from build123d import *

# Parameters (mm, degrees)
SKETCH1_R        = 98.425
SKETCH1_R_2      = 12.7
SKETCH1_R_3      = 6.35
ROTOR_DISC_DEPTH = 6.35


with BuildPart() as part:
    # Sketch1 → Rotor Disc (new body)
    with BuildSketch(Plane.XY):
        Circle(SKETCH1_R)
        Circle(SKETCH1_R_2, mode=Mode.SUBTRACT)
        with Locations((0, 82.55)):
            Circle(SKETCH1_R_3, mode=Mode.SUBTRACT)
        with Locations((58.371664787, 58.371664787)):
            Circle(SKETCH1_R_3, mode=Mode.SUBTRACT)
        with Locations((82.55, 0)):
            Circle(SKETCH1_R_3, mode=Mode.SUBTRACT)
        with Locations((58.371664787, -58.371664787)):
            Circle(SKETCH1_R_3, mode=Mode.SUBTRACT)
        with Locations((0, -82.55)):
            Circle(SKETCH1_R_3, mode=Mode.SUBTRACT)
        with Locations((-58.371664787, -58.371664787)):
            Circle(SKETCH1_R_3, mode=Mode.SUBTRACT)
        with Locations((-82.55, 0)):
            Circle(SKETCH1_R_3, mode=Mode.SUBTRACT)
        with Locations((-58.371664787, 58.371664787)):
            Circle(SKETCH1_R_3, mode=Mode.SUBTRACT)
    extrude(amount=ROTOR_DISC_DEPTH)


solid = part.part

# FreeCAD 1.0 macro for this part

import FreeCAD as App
import Part
import Sketcher
from FreeCAD import Vector
Q = App.Units.Quantity

doc = App.newDocument("Part")
body = doc.addObject("PartDesign::Body", "Body")

sketch1 = body.newObject("Sketcher::SketchObject", "Sketch")
sketch1.AttachmentSupport = (doc.getObject("XY_Plane"), [""])
sketch1.MapMode = "FlatFace"
sketch1.addGeometry([
    Part.Circle(Vector(0, 0, 0), Vector(0, 0, 1), 98),
    Part.Circle(Vector(-58, -58, 0), Vector(0, 0, 1), 6),
    Part.Circle(Vector(0, -83, 0), Vector(0, 0, 1), 6),
    Part.Circle(Vector(58, -58, 0), Vector(0, 0, 1), 6),
    Part.Circle(Vector(-83, 0, 0), Vector(0, 0, 1), 6),
    Part.Circle(Vector(-58, 58, 0), Vector(0, 0, 1), 6),
    Part.Circle(Vector(0, 0, 0), Vector(0, 0, 1), 13),
    Part.Circle(Vector(83, 0, 0), Vector(0, 0, 1), 6),
    Part.Circle(Vector(0, 83, 0), Vector(0, 0, 1), 6),
    Part.Circle(Vector(58, 58, 0), Vector(0, 0, 1), 6),
], False)
sketch1.addConstraint([
    Sketcher.Constraint("Coincident", 0, 3, -1, 1),
    Sketcher.Constraint("Coincident", 6, 3, -1, 1),
    Sketcher.Constraint("Equal", 1, 2),
    Sketcher.Constraint("Equal", 2, 3),
    Sketcher.Constraint("Equal", 3, 4),
    Sketcher.Constraint("Equal", 4, 5),
    Sketcher.Constraint("Equal", 5, 7),
    Sketcher.Constraint("Equal", 7, 8),
    Sketcher.Constraint("Equal", 8, 9),
    Sketcher.Constraint("Symmetric", 3, 3, 5, 3, -1, 1),
    Sketcher.Constraint("Symmetric", 4, 3, 7, 3, -1, 1),
    Sketcher.Constraint("Symmetric", 2, 3, 8, 3, -1, 1),
    Sketcher.Constraint("Symmetric", 1, 3, 9, 3, -1, 1),
    Sketcher.Constraint("Symmetric", 1, 3, 3, 3, -2),
    Sketcher.Constraint("PointOnObject", 2, 3, -2),
    Sketcher.Constraint("PointOnObject", 4, 3, -1),
    Sketcher.Constraint("Diameter", 6, Q("1 in")),
    Sketcher.Constraint("Diameter", 1, Q("0.5 in")),
    Sketcher.Constraint("Diameter", 0, Q("7.75 in")),
    Sketcher.Constraint("DistanceY", 2, 3, -1, 1, Q("3.25 in")),
    Sketcher.Constraint("DistanceX", 4, 3, -1, 1, Q("3.25 in")),
    Sketcher.Constraint("DistanceX", 1, 3, 3, 3, 116.74333),
    Sketcher.Constraint("DistanceY", 1, 3, 5, 3, 116.74333),
])
pad1 = body.newObject("PartDesign::Pad", "Pad")
pad1.Profile = sketch1
pad1.Length = Q("0.25 in")

doc.recompute()
